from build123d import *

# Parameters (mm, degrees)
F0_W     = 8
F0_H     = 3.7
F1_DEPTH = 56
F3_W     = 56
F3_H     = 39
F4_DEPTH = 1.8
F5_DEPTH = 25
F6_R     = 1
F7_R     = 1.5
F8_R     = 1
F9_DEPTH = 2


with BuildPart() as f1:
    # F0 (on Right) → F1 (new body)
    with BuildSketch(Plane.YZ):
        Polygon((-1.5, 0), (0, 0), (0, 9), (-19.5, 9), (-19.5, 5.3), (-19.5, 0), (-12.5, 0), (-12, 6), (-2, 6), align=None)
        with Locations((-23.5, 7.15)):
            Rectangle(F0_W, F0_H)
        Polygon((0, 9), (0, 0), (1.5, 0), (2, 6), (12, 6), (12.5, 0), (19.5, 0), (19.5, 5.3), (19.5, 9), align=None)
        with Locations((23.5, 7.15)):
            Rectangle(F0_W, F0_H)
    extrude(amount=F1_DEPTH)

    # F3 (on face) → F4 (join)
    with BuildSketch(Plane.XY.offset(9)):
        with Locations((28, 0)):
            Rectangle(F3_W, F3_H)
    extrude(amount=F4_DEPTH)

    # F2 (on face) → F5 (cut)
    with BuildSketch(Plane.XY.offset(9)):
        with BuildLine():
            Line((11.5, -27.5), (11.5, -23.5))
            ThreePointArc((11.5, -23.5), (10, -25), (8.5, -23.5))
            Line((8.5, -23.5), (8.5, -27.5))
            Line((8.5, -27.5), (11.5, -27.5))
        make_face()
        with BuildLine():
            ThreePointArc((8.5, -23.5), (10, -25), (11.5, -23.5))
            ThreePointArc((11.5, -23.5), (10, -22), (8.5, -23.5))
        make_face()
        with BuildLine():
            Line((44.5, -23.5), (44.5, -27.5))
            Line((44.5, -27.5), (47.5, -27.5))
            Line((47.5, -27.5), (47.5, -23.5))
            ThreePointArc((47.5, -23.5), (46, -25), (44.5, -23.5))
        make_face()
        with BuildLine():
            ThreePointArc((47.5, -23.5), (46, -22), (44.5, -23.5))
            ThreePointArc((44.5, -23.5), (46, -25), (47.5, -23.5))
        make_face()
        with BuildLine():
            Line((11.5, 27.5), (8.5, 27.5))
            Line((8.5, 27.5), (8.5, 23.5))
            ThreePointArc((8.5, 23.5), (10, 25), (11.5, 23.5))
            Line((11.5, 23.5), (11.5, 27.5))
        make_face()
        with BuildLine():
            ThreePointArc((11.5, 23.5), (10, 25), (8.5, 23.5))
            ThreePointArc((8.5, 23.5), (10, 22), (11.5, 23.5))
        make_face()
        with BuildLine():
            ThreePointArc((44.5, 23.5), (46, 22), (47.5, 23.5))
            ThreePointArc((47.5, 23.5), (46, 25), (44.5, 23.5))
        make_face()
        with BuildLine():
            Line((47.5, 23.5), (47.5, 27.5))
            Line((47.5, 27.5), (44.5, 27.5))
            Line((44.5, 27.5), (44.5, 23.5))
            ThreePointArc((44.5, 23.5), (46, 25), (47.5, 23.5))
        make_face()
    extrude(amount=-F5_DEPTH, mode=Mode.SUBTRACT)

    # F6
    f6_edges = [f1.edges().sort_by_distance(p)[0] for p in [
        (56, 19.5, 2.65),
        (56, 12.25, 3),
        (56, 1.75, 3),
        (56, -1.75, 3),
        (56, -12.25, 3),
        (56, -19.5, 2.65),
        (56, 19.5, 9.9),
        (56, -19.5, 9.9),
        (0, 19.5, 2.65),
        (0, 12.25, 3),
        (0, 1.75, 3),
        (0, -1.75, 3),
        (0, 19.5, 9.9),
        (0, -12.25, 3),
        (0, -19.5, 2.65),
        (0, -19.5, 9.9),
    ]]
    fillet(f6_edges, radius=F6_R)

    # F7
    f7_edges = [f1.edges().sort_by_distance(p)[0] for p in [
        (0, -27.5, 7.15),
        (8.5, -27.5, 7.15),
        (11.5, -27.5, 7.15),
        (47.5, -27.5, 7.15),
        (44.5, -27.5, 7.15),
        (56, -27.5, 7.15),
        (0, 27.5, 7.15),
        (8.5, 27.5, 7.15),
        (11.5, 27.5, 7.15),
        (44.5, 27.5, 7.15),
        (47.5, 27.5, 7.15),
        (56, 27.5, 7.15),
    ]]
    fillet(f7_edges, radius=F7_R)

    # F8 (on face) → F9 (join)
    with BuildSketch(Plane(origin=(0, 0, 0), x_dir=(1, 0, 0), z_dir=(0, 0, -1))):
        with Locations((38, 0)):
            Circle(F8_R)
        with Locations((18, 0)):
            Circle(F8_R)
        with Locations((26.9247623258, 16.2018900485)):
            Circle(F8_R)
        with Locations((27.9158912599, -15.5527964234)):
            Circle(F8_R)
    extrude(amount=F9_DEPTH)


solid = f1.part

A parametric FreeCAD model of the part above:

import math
import FreeCAD as App
import Part
import Sketcher

V = App.Vector
Q = App.Units.Quantity


def edges_at(feature, points):
    """Names of the edges that pass closest to the given points."""
    edges = feature.Shape.Edges
    near = lambda p: min(range(len(edges)), key=lambda i: edges[i].distToShape(Part.Vertex(*p))[0])
    return sorted({f"Edge{near(p) + 1}" for p in points})


def add_polygon(sketch, points):
    """Adds a closed chain of lines whose ends are joined by coincident constraints."""
    first, n = sketch.GeometryCount, len(points)
    for a, b in zip(points, points[1:] + points[:1]):
        sketch.addGeometry(Part.LineSegment(App.Vector(*a, 0), App.Vector(*b, 0)), False)
    for i in range(n):
        sketch.addConstraint(Sketcher.Constraint("Coincident", first + i, 2, first + (i + 1) % n, 1))

doc = App.newDocument("Part")
body = doc.addObject("PartDesign::Body", "Body")

# Sketch on YZ plane
sketch1 = doc.addObject("Sketcher::SketchObject", "Sketch")
body.addObject(sketch1)
sketch1.AttachmentSupport = (doc.YZ_Plane, [""])
sketch1.MapMode = "FlatFace"
add_polygon(sketch1, [(-1.5, 0), (1.5, 0), (2, 6), (12, 6), (12.5, 0), (19.5, 0), (19.5, 5.3), (27.5, 5.3), (27.5, 9), (-27.5, 9), (-27.5, 5.3), (-19.5, 5.3), (-19.5, 0), (-12.5, 0), (-12, 6), (-2, 6)])  # lines 0-15
sketch1.addConstraint([
    Sketcher.Constraint("Horizontal", 0),
    Sketcher.Constraint("Horizontal", 2),
    Sketcher.Constraint("Horizontal", 4),
    Sketcher.Constraint("Vertical", 5),
    Sketcher.Constraint("Horizontal", 6),
    Sketcher.Constraint("Vertical", 7),
    Sketcher.Constraint("Horizontal", 8),
    Sketcher.Constraint("Vertical", 9),
    Sketcher.Constraint("Horizontal", 10),
    Sketcher.Constraint("Vertical", 11),
    Sketcher.Constraint("Horizontal", 12),
    Sketcher.Constraint("Horizontal", 14),
    Sketcher.Constraint("Symmetric", 4, 2, 11, 2, -1, 1),
    Sketcher.Constraint("Symmetric", 0, 2, 15, 2, -1, 1),
    Sketcher.Constraint("Symmetric", 6, 2, 9, 2, -2),
    Sketcher.Constraint("Symmetric", 3, 2, 12, 2, -2),
    Sketcher.Constraint("Symmetric", 2, 2, 13, 2, -2),
    Sketcher.Constraint("Parallel", 1, 13),
    Sketcher.Constraint("Parallel", 3, 15),
    Sketcher.Constraint("DistanceX", 0, 1, 0, 2, Q("3 mm")),
    Sketcher.Constraint("DistanceX", 2, 1, 2, 2, Q("10 mm")),
    Sketcher.Constraint("DistanceX", 4, 1, 4, 2, Q("7 mm")),
    Sketcher.Constraint("DistanceX", 6, 1, 6, 2, Q("8 mm")),
    Sketcher.Constraint("DistanceX", 8, 2, 8, 1, Q("55 mm")),
    Sketcher.Constraint("DistanceY", 5, 1, 5, 2, Q("5.3 mm")),
    Sketcher.Constraint("DistanceY", 7, 1, 7, 2, Q("3.7 mm")),
    Sketcher.Constraint("DistanceY", -1, 1, 1, 2, Q("6 mm")),
])
pad1 = doc.addObject("PartDesign::Pad", "Pad")
body.addObject(pad1)
pad1.Profile = sketch1
pad1.Length = 56

# Sketch on XY plane
sketch2 = doc.addObject("Sketcher::SketchObject", "Sketch001")
body.addObject(sketch2)
sketch2.AttachmentSupport = (doc.XY_Plane, [""])
sketch2.MapMode = "FlatFace"
sketch2.AttachmentOffset = App.Placement(V(0, 0, 9), App.Rotation())
add_polygon(sketch2, [(0, 19.5), (0, -19.5), (56, -19.5), (56, 19.5)])  # lines 0-3
sketch2.addConstraint([
    Sketcher.Constraint("Vertical", 0),
    Sketcher.Constraint("Horizontal", 1),
    Sketcher.Constraint("Vertical", 2),
    Sketcher.Constraint("Horizontal", 3),
    Sketcher.Constraint("Symmetric", 0, 2, 3, 2, -1, 1),
    Sketcher.Constraint("DistanceX", 1, 1, 1, 2, Q("56 mm")),
    Sketcher.Constraint("DistanceY", 0, 2, 0, 1, Q("39 mm")),
])
pad2 = doc.addObject("PartDesign::Pad", "Pad001")
body.addObject(pad2)
pad2.Profile = sketch2
pad2.Length = 1.8

# Sketch on XY plane
sketch3 = doc.addObject("Sketcher::SketchObject", "Sketch002")
body.addObject(sketch3)
sketch3.AttachmentSupport = (doc.XY_Plane, [""])
sketch3.MapMode = "FlatFace"
sketch3.AttachmentOffset = App.Placement(V(0, 0, 9), App.Rotation())
sketch3.addGeometry([
    Part.LineSegment(V(11.5, -27.5, 0), V(11.5, -23.5, 0)),  # 0
    Part.ArcOfCircle(Part.Circle(V(10, -23.5, 0), V(0, 0, 1), 1.5), math.radians(0), math.radians(180)),  # 1
    Part.LineSegment(V(8.5, -23.5, 0), V(8.5, -27.5, 0)),  # 2
    Part.LineSegment(V(8.5, -27.5, 0), V(11.5, -27.5, 0)),  # 3
    Part.LineSegment(V(44.5, -23.5, 0), V(44.5, -27.5, 0)),  # 4
    Part.LineSegment(V(44.5, -27.5, 0), V(47.5, -27.5, 0)),  # 5
    Part.LineSegment(V(47.5, -27.5, 0), V(47.5, -23.5, 0)),  # 6
    Part.ArcOfCircle(Part.Circle(V(46, -23.5, 0), V(0, 0, 1), 1.5), math.radians(0), math.radians(180)),  # 7
    Part.LineSegment(V(11.5, 27.5, 0), V(8.5, 27.5, 0)),  # 8
    Part.LineSegment(V(8.5, 27.5, 0), V(8.5, 23.5, 0)),  # 9
    Part.ArcOfCircle(Part.Circle(V(10, 23.5, 0), V(0, 0, 1), 1.5), math.radians(180), math.radians(360)),  # 10
    Part.LineSegment(V(11.5, 23.5, 0), V(11.5, 27.5, 0)),  # 11
    Part.ArcOfCircle(Part.Circle(V(46, 23.5, 0), V(0, 0, 1), 1.5), math.radians(180), math.radians(360)),  # 12
    Part.LineSegment(V(47.5, 23.5, 0), V(47.5, 27.5, 0)),  # 13
    Part.LineSegment(V(47.5, 27.5, 0), V(44.5, 27.5, 0)),  # 14
    Part.LineSegment(V(44.5, 27.5, 0), V(44.5, 23.5, 0)),  # 15
], False)
sketch3.addConstraint([
    Sketcher.Constraint("Tangent", 0, 2, 1, 1),
    Sketcher.Constraint("Tangent", 1, 2, 2, 1),
    Sketcher.Constraint("Coincident", 2, 2, 3, 1),
    Sketcher.Constraint("Coincident", 3, 2, 0, 1),
    Sketcher.Constraint("Coincident", 4, 2, 5, 1),
    Sketcher.Constraint("Coincident", 5, 2, 6, 1),
    Sketcher.Constraint("Tangent", 6, 2, 7, 1),
    Sketcher.Constraint("Tangent", 7, 2, 4, 1),
    Sketcher.Constraint("Coincident", 8, 2, 9, 1),
    Sketcher.Constraint("Tangent", 9, 2, 10, 1),
    Sketcher.Constraint("Tangent", 10, 2, 11, 1),
    Sketcher.Constraint("Coincident", 11, 2, 8, 1),
    Sketcher.Constraint("Tangent", 12, 2, 13, 1),
    Sketcher.Constraint("Coincident", 13, 2, 14, 1),
    Sketcher.Constraint("Coincident", 14, 2, 15, 1),
    Sketcher.Constraint("Tangent", 15, 2, 12, 1),
    Sketcher.Constraint("Vertical", 0),
    Sketcher.Constraint("Vertical", 2),
    Sketcher.Constraint("Horizontal", 3),
    Sketcher.Constraint("Vertical", 4),
    Sketcher.Constraint("Horizontal", 5),
    Sketcher.Constraint("Vertical", 6),
    Sketcher.Constraint("Horizontal", 8),
    Sketcher.Constraint("Vertical", 9),
    Sketcher.Constraint("Vertical", 11),
    Sketcher.Constraint("Vertical", 13),
    Sketcher.Constraint("Horizontal", 14),
    Sketcher.Constraint("Vertical", 15),
    Sketcher.Constraint("Equal", 1, 7),
    Sketcher.Constraint("Equal", 7, 10),
    Sketcher.Constraint("Equal", 10, 12),
    Sketcher.Constraint("Symmetric", 1, 3, 10, 3, -1),
    Sketcher.Constraint("Symmetric", 7, 3, 12, 3, -1),
    Sketcher.Constraint("Horizontal", 1, 3, 7, 3),
    Sketcher.Constraint("Horizontal", 3, 2, 4, 2),
    Sketcher.Constraint("Horizontal", 11, 2, 13, 2),
    Sketcher.Constraint("Equal", 6, 9),
    Sketcher.Constraint("Radius", 1, Q("1.5 mm")),
    Sketcher.Constraint("DistanceY", 0, 1, 0, 2, Q("4 mm")),
    Sketcher.Constraint("DistanceX", -1, 1, 1, 3, Q("10 mm")),
    Sketcher.Constraint("DistanceX", -1, 1, 7, 3, Q("46 mm")),
    Sketcher.Constraint("DistanceY", 1, 3, 10, 3, Q("47 mm")),
])
pocket1 = doc.addObject("PartDesign::Pocket", "Pocket")
body.addObject(pocket1)
pocket1.Profile = sketch3
pocket1.Length = 25
doc.recompute()

fillet = doc.addObject("PartDesign::Fillet", "Fillet")
body.addObject(fillet)
fillet.Base = (pocket1, edges_at(pocket1, [
    (56, 19.5, 2.65),
    (56, 12.25, 3),
    (56, 1.75, 3),
    (56, -1.75, 3),
    (56, -12.25, 3),
    (56, -19.5, 2.65),
    (56, 19.5, 9.9),
    (56, -19.5, 9.9),
    (0, 19.5, 2.65),
    (0, 12.25, 3),
    (0, 1.75, 3),
    (0, -1.75, 3),
    (0, 19.5, 9.9),
    (0, -12.25, 3),
    (0, -19.5, 2.65),
    (0, -19.5, 9.9),
]))
fillet.Radius = 1
doc.recompute()

fillet2 = doc.addObject("PartDesign::Fillet", "Fillet001")
body.addObject(fillet2)
fillet2.Base = (fillet, edges_at(fillet, [
    (0, -27.5, 7.15),
    (8.5, -27.5, 7.15),
    (11.5, -27.5, 7.15),
    (47.5, -27.5, 7.15),
    (44.5, -27.5, 7.15),
    (56, -27.5, 7.15),
    (0, 27.5, 7.15),
    (8.5, 27.5, 7.15),
    (11.5, 27.5, 7.15),
    (44.5, 27.5, 7.15),
    (47.5, 27.5, 7.15),
    (56, 27.5, 7.15),
]))
fillet2.Radius = 1.5

# Sketch on XY plane
sketch4 = doc.addObject("Sketcher::SketchObject", "Sketch003")
body.addObject(sketch4)
sketch4.AttachmentSupport = (doc.XY_Plane, [""])
sketch4.MapMode = "FlatFace"
sketch4.addGeometry([
    Part.Circle(V(38, 0, 0), V(0, 0, 1), 1),
    Part.Circle(V(18, 0, 0), V(0, 0, 1), 1),
    Part.Circle(V(26.924762, -16.20189, 0), V(0, 0, 1), 1),
    Part.Circle(V(27.915891, 15.552796, 0), V(0, 0, 1), 1),
], False)
sketch4.addConstraint([
    Sketcher.Constraint("Equal", 0, 1),
    Sketcher.Constraint("Equal", 1, 2),
    Sketcher.Constraint("Equal", 2, 3),
    Sketcher.Constraint("PointOnObject", 0, 3, -1),
    Sketcher.Constraint("PointOnObject", 1, 3, -1),
    Sketcher.Constraint("Diameter", 0, Q("2 mm")),
    Sketcher.Constraint("DistanceX", -1, 1, 0, 3, Q("38 mm")),
    Sketcher.Constraint("DistanceX", -1, 1, 1, 3, Q("18 mm")),
    Sketcher.Constraint("DistanceY", 2, 3, -1, 1, Q("16.20189 mm")),
    Sketcher.Constraint("DistanceX", -1, 1, 3, 3, Q("27.915891 mm")),
    Sketcher.Constraint("DistanceX", 2, 3, 3, 3, Q("0.991129 mm")),
    Sketcher.Constraint("DistanceY", -1, 1, 3, 3, Q("15.552796 mm")),
])
pad3 = doc.addObject("PartDesign::Pad", "Pad002")
body.addObject(pad3)
pad3.Profile = sketch4
pad3.Length = 2
pad3.Reversed = True

doc.recompute()
